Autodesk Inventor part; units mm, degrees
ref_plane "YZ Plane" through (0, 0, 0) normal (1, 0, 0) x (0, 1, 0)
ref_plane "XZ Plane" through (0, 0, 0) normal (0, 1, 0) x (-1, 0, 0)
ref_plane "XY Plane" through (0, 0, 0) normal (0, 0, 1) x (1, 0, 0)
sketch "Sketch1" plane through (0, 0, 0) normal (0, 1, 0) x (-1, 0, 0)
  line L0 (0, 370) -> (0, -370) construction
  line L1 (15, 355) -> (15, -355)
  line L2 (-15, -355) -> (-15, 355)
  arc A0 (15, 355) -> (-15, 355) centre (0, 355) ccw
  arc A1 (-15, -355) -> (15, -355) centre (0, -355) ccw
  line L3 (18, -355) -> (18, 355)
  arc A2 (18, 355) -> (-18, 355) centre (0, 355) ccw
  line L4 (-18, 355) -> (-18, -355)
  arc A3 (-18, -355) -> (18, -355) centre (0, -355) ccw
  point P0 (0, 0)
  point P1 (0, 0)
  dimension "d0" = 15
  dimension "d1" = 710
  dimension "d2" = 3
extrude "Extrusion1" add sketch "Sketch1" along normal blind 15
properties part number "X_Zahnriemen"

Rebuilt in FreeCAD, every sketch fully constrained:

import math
import FreeCAD as App
import Part
import Sketcher
from FreeCAD import Vector
Q = App.Units.Quantity

doc = App.newDocument("Part")
body = doc.addObject("PartDesign::Body", "Body")

sketch1 = body.newObject("Sketcher::SketchObject", "Sketch")
sketch1.AttachmentSupport = (doc.getObject("XZ_Plane"), [""])
sketch1.MapMode = "FlatFace"
sketch1.addGeometry([
    Part.ArcOfCircle(Part.Circle(Vector(0, -355, 0), Vector(0, 0, 1), 18), math.radians(180), math.radians(360)),
    Part.LineSegment(Vector(-18, -355, 0), Vector(-18, 355, 0)),
    Part.ArcOfCircle(Part.Circle(Vector(0, 355, 0), Vector(0, 0, 1), 18), math.radians(0), math.radians(180)),
    Part.LineSegment(Vector(18, 355, 0), Vector(18, -355, 0)),
    Part.ArcOfCircle(Part.Circle(Vector(0, 355, 0), Vector(0, 0, 1), 15), math.radians(0), math.radians(180)),
    Part.LineSegment(Vector(-15, 355, 0), Vector(-15, -355, 0)),
    Part.ArcOfCircle(Part.Circle(Vector(0, -355, 0), Vector(0, 0, 1), 15), math.radians(180), math.radians(360)),
    Part.LineSegment(Vector(15, -355, 0), Vector(15, 355, 0)),
], False)
sketch1.addConstraint([
    Sketcher.Constraint("Tangent", 0, 1, 1, 1),
    Sketcher.Constraint("Tangent", 1, 2, 2, 2),
    Sketcher.Constraint("Tangent", 2, 1, 3, 1),
    Sketcher.Constraint("Tangent", 3, 2, 0, 2),
    Sketcher.Constraint("Tangent", 4, 2, 5, 1),
    Sketcher.Constraint("Tangent", 5, 2, 6, 1),
    Sketcher.Constraint("Tangent", 6, 2, 7, 1),
    Sketcher.Constraint("Tangent", 7, 2, 4, 1),
    Sketcher.Constraint("Vertical", 1),
    Sketcher.Constraint("Vertical", 3),
    Sketcher.Constraint("Vertical", 5),
    Sketcher.Constraint("Vertical", 7),
    Sketcher.Constraint("Coincident", 4, 3, 2, 3),
    Sketcher.Constraint("Symmetric", 0, 3, 2, 3, -1, 1),
    Sketcher.Constraint("Horizontal", 6, 3, 0, 1),
    Sketcher.Constraint("Radius", 4, Q("15 mm")),
    Sketcher.Constraint("DistanceY", 1, 1, 1, 2, Q("710 mm")),
    Sketcher.Constraint("Radius", 0, Q("18 mm")),
])
pad1 = body.newObject("PartDesign::Pad", "Pad")
pad1.Profile = sketch1
pad1.Length = 15
pad1.Reversed = True

doc.recompute()
